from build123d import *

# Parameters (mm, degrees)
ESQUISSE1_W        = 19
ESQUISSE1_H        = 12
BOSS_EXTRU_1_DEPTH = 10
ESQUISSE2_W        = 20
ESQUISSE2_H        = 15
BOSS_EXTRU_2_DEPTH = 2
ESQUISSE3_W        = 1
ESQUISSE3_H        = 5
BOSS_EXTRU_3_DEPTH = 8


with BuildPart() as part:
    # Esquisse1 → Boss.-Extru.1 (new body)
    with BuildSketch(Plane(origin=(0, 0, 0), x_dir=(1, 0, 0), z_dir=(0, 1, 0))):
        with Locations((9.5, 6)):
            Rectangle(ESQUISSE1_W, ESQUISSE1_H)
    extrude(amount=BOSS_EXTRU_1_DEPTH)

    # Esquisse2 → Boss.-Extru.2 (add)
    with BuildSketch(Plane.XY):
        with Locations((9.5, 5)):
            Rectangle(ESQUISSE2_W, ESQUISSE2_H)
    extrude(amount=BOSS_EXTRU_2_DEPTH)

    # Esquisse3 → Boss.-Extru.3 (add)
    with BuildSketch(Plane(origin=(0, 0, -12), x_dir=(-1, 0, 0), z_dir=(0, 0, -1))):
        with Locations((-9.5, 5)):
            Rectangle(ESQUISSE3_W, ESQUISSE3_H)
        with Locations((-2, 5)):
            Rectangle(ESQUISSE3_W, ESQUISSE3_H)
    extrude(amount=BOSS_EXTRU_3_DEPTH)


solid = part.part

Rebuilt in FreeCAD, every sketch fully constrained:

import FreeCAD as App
import Part
import Sketcher
from FreeCAD import Vector


def add_polygon(sketch, points):
    """Adds a closed chain of lines whose ends are joined by coincident constraints."""
    first, n = sketch.GeometryCount, len(points)
    for a, b in zip(points, points[1:] + points[:1]):
        sketch.addGeometry(Part.LineSegment(App.Vector(*a, 0), App.Vector(*b, 0)), False)
    for i in range(n):
        sketch.addConstraint(Sketcher.Constraint("Coincident", first + i, 2, first + (i + 1) % n, 1))

doc = App.newDocument("Part")
body = doc.addObject("PartDesign::Body", "Body")

sketch1 = doc.addObject("Sketcher::SketchObject", "Sketch")
body.addObject(sketch1)
sketch1.AttachmentSupport = (doc.XZ_Plane, [""])
sketch1.MapMode = "FlatFace"
add_polygon(sketch1, [(0, -12), (0, 0), (19, 0), (19, -12)])
sketch1.addConstraint([
    Sketcher.Constraint("Vertical", 0),
    Sketcher.Constraint("Horizontal", 1),
    Sketcher.Constraint("Vertical", 2),
    Sketcher.Constraint("Horizontal", 3),
    Sketcher.Constraint("Coincident", 0, 2, -1, 1),
    Sketcher.Constraint("DistanceX", 1, 1, 1, 2, 19.0),
    Sketcher.Constraint("DistanceY", 0, 1, 0, 2, 12.0),
])
pad1 = doc.addObject("PartDesign::Pad", "Pad")
body.addObject(pad1)
pad1.Profile = sketch1
pad1.Length = 10
pad1.Reversed = True

sketch2 = doc.addObject("Sketcher::SketchObject", "Sketch001")
body.addObject(sketch2)
sketch2.AttachmentSupport = (doc.XY_Plane, [""])
sketch2.MapMode = "FlatFace"
add_polygon(sketch2, [(0, 12), (0, -2), (20, -2), (20, 12)])
sketch2.addConstraint([
    Sketcher.Constraint("Vertical", 0),
    Sketcher.Constraint("Horizontal", 1),
    Sketcher.Constraint("Vertical", 2),
    Sketcher.Constraint("Horizontal", 3),
    Sketcher.Constraint("DistanceX", 1, 1, 1, 2, 20.0),
    Sketcher.Constraint("DistanceY", 0, 2, 0, 1, 15.0),
    Sketcher.Constraint("DistanceX", 0, 2, -1, 1, 0.5),
    Sketcher.Constraint("DistanceY", 0, 2, -1, 1, 2.5),
])
pad2 = doc.addObject("PartDesign::Pad", "Pad001")
body.addObject(pad2)
pad2.Profile = sketch2
pad2.Length = 2

sketch3 = doc.addObject("Sketcher::SketchObject", "Sketch002")
body.addObject(sketch3)
sketch3.AttachmentSupport = (doc.XY_Plane, [""])
sketch3.MapMode = "FlatFace"
sketch3.AttachmentOffset = App.Placement(Vector(0, 0, -12), App.Rotation())
add_polygon(sketch3, [(10, 7.5), (10, 2.5), (9, 2.5), (9, 7.5)])
add_polygon(sketch3, [(2.5, 7.5), (2.5, 2.5), (1.5, 2.5), (1.5, 7.5)])
sketch3.addConstraint([
    Sketcher.Constraint("Vertical", 0),
    Sketcher.Constraint("Horizontal", 1),
    Sketcher.Constraint("Vertical", 2),
    Sketcher.Constraint("Horizontal", 3),
    Sketcher.Constraint("Vertical", 4),
    Sketcher.Constraint("Horizontal", 5),
    Sketcher.Constraint("Vertical", 6),
    Sketcher.Constraint("Horizontal", 7),
    Sketcher.Constraint("Horizontal", 1, 2, 4, 2),
    Sketcher.Constraint("Horizontal", 3, 2, 6, 2),
    Sketcher.Constraint("Equal", 3, 5),
    Sketcher.Constraint("DistanceX", 1, 2, 1, 1, 1.0),
    Sketcher.Constraint("DistanceY", 0, 2, 0, 1, 5.0),
    Sketcher.Constraint("DistanceX", -1, 1, 0, 2, 10.0),
    Sketcher.Constraint("DistanceY", -1, 1, 0, 2, 2.5),
    Sketcher.Constraint("DistanceX", -1, 1, 4, 2, 2.5),
])
pad3 = doc.addObject("PartDesign::Pad", "Pad002")
body.addObject(pad3)
pad3.Profile = sketch3
pad3.Length = 8
pad3.Reversed = True

doc.recompute()
